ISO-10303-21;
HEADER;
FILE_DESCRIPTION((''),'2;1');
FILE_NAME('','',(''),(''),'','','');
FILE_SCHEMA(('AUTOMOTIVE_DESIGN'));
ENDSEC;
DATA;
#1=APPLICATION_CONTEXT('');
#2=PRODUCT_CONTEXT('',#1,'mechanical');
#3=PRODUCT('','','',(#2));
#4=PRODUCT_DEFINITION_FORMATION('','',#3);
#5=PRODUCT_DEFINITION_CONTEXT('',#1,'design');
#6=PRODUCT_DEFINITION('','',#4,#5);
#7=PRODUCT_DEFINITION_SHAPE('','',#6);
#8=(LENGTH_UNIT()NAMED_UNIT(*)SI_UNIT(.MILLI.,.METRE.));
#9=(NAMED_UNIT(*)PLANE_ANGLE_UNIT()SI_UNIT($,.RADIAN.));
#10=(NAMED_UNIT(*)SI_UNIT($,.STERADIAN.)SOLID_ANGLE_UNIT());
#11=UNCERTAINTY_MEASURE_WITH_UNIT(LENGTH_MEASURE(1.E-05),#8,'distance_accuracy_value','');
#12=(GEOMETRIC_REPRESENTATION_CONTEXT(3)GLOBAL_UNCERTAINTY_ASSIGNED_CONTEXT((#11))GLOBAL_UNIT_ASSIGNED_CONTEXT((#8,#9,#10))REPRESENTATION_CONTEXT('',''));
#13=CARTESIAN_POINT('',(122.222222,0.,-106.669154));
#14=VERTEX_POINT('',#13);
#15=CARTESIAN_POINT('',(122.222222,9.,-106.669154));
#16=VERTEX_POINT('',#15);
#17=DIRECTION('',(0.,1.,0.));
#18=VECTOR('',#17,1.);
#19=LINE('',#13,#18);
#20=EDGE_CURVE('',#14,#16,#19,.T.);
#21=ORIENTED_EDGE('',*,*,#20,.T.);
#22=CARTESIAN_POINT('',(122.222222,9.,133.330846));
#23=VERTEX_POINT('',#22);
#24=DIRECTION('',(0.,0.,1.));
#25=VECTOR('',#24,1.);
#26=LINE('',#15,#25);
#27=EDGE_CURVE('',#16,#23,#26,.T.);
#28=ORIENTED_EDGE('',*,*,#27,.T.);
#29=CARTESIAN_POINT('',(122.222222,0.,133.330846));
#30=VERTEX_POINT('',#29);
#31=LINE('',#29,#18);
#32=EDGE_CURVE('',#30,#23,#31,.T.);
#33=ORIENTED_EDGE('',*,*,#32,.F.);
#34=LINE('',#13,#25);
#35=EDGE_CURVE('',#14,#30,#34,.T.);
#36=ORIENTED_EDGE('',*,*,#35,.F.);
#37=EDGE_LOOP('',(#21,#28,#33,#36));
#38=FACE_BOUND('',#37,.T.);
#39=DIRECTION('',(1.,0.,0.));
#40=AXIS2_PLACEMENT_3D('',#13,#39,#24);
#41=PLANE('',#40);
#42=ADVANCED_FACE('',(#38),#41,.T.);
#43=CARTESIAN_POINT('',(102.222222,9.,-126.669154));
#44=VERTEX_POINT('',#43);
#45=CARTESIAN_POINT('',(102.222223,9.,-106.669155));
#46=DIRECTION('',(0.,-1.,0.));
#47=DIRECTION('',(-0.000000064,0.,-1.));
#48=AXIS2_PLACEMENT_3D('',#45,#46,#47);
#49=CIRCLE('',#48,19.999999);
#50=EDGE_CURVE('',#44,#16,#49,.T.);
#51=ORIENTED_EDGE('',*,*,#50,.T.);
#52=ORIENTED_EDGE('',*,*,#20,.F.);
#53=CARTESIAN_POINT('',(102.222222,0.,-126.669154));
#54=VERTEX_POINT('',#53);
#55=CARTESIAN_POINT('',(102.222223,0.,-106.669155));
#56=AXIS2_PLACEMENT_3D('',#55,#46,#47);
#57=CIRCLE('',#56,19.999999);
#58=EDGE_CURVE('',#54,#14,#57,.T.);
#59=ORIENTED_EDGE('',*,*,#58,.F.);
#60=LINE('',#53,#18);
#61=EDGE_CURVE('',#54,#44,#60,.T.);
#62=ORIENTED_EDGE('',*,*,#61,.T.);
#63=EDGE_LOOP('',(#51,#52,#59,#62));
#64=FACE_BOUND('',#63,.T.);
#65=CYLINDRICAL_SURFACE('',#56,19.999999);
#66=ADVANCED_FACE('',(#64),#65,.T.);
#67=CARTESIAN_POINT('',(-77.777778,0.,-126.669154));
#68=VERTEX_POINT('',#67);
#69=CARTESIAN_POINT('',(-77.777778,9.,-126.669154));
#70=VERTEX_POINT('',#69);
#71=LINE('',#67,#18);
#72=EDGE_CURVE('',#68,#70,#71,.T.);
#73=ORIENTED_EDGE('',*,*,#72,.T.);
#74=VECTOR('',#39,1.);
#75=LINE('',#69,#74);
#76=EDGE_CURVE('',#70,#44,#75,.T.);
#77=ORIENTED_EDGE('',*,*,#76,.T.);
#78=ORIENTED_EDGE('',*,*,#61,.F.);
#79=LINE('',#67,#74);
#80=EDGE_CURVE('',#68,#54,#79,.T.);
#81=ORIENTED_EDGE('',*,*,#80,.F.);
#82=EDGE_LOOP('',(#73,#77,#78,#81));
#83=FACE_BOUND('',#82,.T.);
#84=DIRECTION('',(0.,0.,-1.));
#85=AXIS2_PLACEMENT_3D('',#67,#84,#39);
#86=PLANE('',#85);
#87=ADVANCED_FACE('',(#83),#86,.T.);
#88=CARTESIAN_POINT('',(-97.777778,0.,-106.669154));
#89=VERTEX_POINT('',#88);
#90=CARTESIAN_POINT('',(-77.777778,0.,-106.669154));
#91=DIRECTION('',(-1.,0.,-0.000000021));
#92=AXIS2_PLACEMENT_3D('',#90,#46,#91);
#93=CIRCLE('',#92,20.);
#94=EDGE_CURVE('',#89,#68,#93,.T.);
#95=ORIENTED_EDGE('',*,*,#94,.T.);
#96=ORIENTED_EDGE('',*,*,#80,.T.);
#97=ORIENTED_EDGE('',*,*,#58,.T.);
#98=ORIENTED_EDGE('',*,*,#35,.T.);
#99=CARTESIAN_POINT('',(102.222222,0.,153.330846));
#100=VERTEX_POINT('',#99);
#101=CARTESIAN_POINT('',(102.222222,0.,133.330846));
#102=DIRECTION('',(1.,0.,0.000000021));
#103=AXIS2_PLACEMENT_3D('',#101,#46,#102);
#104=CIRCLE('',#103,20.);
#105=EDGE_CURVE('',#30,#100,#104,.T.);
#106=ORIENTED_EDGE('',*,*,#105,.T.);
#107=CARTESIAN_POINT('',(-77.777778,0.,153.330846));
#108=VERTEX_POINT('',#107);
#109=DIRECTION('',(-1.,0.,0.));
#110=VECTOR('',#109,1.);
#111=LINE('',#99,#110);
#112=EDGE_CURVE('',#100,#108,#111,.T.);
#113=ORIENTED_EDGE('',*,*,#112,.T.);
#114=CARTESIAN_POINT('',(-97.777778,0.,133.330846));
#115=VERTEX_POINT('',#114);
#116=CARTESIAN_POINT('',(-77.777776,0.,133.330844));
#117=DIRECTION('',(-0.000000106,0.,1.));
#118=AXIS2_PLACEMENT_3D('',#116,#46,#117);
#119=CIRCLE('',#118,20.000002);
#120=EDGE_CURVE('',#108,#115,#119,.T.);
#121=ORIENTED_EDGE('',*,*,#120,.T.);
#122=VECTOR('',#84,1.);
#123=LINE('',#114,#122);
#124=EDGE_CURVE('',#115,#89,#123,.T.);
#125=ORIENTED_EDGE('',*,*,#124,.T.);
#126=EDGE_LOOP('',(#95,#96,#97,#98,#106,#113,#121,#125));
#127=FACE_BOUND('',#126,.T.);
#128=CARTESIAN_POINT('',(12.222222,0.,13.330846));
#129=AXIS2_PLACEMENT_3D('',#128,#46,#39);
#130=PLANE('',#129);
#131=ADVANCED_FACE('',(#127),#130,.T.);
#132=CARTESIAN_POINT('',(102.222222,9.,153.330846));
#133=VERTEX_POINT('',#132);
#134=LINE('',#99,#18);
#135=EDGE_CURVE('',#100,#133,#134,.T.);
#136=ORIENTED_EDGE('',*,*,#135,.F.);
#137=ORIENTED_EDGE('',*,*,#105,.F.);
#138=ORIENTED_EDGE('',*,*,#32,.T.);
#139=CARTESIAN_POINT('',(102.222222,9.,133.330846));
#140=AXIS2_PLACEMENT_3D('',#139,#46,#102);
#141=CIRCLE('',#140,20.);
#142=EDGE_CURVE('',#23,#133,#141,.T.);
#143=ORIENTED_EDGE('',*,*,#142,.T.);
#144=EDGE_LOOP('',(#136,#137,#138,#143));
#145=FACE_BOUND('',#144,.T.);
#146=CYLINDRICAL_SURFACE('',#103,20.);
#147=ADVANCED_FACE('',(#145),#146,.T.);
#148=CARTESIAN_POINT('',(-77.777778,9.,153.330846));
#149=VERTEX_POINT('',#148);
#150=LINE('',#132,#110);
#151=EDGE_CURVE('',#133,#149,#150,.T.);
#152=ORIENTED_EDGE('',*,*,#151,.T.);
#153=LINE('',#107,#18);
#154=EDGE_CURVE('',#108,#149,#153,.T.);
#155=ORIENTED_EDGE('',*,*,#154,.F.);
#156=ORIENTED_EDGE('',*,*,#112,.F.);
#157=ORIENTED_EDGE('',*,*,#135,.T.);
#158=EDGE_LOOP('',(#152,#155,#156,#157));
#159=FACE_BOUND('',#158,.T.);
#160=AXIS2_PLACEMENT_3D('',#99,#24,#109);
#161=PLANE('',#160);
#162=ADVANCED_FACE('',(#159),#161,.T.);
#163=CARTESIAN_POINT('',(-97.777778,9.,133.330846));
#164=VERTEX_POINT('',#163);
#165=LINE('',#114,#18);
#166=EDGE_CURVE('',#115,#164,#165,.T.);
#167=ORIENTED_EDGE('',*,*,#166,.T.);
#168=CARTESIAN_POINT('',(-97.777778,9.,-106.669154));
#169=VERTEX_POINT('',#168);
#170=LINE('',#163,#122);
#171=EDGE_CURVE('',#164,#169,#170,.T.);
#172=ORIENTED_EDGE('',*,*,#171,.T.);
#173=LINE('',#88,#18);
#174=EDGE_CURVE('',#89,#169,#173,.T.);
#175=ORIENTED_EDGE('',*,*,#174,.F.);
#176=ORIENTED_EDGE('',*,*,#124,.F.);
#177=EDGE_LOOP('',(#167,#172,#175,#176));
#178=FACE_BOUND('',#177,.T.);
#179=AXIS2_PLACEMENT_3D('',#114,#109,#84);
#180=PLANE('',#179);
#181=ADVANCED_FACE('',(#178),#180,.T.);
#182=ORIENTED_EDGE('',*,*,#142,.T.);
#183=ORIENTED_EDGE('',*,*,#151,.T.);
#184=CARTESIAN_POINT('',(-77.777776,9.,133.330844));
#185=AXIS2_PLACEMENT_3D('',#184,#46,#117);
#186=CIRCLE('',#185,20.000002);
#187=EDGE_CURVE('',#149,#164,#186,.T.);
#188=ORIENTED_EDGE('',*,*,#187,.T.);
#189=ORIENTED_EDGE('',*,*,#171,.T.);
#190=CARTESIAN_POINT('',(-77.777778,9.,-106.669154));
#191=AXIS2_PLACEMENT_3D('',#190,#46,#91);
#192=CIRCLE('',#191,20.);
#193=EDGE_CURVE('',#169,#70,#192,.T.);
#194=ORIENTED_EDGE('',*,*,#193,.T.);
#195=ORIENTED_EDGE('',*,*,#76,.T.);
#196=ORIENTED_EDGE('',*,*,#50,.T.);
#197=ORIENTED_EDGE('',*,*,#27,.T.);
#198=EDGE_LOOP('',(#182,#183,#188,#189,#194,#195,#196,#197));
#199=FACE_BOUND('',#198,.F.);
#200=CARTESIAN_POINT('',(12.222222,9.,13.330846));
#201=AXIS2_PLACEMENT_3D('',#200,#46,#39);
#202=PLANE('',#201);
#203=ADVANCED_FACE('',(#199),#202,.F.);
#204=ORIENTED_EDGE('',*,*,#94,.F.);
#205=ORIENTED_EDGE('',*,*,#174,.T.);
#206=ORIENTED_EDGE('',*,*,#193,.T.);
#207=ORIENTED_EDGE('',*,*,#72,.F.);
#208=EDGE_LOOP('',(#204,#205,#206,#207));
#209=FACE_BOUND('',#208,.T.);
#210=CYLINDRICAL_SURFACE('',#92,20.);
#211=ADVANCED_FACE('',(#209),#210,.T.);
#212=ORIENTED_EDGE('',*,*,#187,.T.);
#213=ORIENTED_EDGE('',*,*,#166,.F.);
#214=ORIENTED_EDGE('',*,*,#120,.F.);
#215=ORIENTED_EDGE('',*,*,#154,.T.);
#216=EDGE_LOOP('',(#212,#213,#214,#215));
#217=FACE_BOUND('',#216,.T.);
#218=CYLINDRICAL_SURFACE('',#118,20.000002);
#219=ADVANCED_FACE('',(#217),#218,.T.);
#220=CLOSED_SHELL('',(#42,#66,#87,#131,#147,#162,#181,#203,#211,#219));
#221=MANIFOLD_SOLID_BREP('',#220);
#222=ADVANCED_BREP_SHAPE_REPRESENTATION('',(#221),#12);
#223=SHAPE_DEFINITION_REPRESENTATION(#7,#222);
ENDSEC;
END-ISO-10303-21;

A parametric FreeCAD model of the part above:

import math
import FreeCAD as App
import Part
import Sketcher
from FreeCAD import Vector

doc = App.newDocument("Part")
body = doc.addObject("PartDesign::Body", "Body")

# Sketch on XZ plane
sketch1 = doc.addObject("Sketcher::SketchObject", "Sketch")
body.addObject(sketch1)
sketch1.AttachmentSupport = (doc.XZ_Plane, [""])
sketch1.MapMode = "FlatFace"
sketch1.addGeometry([
    Part.ArcOfCircle(Part.Circle(Vector(102, 133, 0), Vector(0, 0, 1), 20), math.radians(0), math.radians(90)),  # 0
    Part.LineSegment(Vector(102, 153, 0), Vector(-78, 153, 0)),  # 1
    Part.ArcOfCircle(Part.Circle(Vector(-78, 133, 0), Vector(0, 0, 1), 20), math.radians(90), math.radians(180)),  # 2
    Part.LineSegment(Vector(-98, 133, 0), Vector(-98, -107, 0)),  # 3
    Part.ArcOfCircle(Part.Circle(Vector(-78, -107, 0), Vector(0, 0, 1), 20), math.radians(-180), math.radians(-90)),  # 4
    Part.LineSegment(Vector(-78, -127, 0), Vector(102, -127, 0)),  # 5
    Part.ArcOfCircle(Part.Circle(Vector(102, -107, 0), Vector(0, 0, 1), 20), math.radians(-90), math.radians(0)),  # 6
    Part.LineSegment(Vector(122, -107, 0), Vector(122, 133, 0)),  # 7
], False)
sketch1.addConstraint([
    Sketcher.Constraint("Tangent", 0, 2, 1, 1),
    Sketcher.Constraint("Tangent", 1, 2, 2, 1),
    Sketcher.Constraint("Tangent", 2, 2, 3, 1),
    Sketcher.Constraint("Tangent", 3, 2, 4, 1),
    Sketcher.Constraint("Tangent", 4, 2, 5, 1),
    Sketcher.Constraint("Tangent", 5, 2, 6, 1),
    Sketcher.Constraint("Tangent", 6, 2, 7, 1),
    Sketcher.Constraint("Tangent", 7, 2, 0, 1),
    Sketcher.Constraint("Horizontal", 1),
    Sketcher.Constraint("Vertical", 3),
    Sketcher.Constraint("Horizontal", 5),
    Sketcher.Constraint("Vertical", 7),
    Sketcher.Constraint("Equal", 0, 2),
    Sketcher.Constraint("Equal", 2, 4),
    Sketcher.Constraint("Equal", 4, 6),
    Sketcher.Constraint("Radius", 0, 20.0),
    Sketcher.Constraint("DistanceX", 1, 2, 1, 1, 180.0),
    Sketcher.Constraint("DistanceY", 3, 2, 3, 1, 240.0),
    Sketcher.Constraint("DistanceX", -1, 1, 0, 3, 102.222222),
    Sketcher.Constraint("DistanceY", -1, 1, 0, 3, 133.330846),
])
pad1 = doc.addObject("PartDesign::Pad", "Pad")
body.addObject(pad1)
pad1.Profile = sketch1
pad1.Length = 9
pad1.Reversed = True

doc.recompute()
